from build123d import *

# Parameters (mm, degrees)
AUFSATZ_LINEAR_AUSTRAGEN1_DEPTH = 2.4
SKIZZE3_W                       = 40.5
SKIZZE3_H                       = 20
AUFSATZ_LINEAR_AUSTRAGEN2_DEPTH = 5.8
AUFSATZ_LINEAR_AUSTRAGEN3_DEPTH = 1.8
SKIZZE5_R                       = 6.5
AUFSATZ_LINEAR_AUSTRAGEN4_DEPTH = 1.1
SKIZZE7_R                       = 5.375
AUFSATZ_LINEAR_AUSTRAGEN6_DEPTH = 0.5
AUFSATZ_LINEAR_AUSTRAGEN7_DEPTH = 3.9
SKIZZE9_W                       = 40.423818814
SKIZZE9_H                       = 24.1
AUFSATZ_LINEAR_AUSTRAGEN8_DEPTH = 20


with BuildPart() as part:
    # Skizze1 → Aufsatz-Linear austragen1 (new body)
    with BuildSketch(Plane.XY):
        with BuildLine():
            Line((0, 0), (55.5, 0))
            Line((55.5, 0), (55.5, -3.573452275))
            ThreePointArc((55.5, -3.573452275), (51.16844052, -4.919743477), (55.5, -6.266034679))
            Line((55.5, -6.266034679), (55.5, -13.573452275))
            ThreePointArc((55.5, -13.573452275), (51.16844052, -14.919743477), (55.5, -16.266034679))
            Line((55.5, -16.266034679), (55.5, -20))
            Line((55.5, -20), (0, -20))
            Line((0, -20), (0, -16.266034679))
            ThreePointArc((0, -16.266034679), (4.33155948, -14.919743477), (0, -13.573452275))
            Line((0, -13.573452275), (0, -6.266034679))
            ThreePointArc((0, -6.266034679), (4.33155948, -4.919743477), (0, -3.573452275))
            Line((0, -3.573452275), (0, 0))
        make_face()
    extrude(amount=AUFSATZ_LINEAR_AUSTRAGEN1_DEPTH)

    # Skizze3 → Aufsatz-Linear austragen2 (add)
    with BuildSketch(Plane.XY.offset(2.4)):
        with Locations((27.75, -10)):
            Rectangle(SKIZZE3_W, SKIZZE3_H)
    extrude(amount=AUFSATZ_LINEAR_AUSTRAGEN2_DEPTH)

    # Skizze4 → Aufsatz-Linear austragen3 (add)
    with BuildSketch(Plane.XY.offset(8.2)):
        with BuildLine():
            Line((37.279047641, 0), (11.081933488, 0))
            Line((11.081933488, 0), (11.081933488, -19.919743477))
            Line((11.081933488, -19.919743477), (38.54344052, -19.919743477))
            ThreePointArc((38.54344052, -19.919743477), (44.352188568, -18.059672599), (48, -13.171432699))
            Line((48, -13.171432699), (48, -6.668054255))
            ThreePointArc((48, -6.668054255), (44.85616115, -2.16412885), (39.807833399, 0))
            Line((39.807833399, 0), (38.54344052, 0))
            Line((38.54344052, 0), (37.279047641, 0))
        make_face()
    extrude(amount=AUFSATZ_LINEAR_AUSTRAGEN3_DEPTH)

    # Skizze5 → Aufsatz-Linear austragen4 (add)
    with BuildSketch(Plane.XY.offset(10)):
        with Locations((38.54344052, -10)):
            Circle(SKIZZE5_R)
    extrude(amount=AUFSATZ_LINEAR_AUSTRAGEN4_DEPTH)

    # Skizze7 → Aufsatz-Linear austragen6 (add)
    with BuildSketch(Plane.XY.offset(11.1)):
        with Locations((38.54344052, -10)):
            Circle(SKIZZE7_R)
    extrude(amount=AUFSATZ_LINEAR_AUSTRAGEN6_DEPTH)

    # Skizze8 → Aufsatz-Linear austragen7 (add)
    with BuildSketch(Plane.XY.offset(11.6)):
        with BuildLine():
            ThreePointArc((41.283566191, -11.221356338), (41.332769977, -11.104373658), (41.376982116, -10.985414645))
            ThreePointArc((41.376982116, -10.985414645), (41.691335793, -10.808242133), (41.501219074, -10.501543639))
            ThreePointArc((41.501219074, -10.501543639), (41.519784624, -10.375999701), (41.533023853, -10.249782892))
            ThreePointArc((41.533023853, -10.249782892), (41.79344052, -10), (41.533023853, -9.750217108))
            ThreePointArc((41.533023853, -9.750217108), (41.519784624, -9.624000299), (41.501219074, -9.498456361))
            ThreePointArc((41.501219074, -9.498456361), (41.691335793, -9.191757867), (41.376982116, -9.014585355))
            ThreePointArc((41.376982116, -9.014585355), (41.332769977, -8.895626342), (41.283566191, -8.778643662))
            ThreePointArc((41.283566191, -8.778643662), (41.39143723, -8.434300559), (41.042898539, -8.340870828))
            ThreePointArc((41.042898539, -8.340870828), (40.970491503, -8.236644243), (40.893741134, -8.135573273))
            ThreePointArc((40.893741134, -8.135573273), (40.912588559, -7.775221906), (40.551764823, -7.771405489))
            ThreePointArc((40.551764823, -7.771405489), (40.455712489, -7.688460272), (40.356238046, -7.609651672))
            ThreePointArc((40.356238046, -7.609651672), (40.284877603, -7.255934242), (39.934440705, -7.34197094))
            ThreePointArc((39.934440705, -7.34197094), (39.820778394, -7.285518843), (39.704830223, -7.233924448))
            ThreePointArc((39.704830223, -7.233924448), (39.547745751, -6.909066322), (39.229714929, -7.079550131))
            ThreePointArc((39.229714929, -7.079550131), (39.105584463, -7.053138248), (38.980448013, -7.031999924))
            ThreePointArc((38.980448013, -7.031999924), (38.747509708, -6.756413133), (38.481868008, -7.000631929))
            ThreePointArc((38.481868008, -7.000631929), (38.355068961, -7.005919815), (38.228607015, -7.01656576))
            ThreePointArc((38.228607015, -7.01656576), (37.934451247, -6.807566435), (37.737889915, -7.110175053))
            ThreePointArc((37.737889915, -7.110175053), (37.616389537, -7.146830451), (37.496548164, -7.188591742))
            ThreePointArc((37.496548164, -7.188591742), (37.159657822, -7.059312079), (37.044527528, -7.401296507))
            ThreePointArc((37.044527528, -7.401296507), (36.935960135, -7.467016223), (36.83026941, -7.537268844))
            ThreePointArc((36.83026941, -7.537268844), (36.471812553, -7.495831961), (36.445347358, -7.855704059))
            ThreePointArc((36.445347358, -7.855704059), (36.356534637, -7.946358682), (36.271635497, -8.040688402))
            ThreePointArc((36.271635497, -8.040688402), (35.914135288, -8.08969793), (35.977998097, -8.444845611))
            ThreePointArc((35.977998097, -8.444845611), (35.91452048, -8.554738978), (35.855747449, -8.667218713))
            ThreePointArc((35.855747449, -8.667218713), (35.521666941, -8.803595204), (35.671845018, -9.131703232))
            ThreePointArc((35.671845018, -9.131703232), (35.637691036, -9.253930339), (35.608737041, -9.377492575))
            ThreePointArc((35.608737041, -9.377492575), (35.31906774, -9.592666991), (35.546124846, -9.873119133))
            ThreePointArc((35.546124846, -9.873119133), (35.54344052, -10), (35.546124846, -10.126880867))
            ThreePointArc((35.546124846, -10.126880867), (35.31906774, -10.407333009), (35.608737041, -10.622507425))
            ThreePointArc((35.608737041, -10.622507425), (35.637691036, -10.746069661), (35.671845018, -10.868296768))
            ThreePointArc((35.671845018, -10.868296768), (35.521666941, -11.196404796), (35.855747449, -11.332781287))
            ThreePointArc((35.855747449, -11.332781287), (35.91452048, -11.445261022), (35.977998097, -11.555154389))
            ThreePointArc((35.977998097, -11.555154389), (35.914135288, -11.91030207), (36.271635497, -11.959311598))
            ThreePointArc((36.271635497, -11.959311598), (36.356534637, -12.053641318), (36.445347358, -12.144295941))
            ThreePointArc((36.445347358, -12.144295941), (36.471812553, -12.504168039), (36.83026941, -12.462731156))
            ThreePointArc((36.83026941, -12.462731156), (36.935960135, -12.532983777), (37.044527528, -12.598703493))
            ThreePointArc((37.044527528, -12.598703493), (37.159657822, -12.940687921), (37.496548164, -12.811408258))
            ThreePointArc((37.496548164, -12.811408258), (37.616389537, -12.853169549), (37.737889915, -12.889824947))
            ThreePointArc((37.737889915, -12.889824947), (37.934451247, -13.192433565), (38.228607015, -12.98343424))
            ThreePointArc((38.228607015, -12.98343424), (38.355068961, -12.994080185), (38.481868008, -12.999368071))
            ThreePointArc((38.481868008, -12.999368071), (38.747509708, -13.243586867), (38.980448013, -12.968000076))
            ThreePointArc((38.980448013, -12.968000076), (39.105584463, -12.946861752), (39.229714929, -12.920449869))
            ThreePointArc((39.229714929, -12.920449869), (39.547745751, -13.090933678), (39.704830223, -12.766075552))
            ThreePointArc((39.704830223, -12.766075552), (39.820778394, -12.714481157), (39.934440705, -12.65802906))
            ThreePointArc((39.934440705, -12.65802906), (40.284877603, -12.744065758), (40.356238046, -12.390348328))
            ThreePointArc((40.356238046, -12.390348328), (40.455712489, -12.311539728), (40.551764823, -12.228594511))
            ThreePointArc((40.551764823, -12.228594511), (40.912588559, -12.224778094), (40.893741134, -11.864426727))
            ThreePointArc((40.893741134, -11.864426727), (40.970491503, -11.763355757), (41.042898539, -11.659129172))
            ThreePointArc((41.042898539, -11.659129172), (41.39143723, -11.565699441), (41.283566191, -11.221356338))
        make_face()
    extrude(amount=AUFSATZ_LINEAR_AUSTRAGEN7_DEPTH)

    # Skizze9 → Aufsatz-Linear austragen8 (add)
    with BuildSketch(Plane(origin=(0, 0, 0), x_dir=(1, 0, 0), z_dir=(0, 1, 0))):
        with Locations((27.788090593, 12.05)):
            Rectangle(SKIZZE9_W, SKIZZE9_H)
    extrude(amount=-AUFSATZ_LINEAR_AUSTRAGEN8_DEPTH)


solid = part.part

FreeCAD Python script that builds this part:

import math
import FreeCAD as App
import Part
import Sketcher
Q = App.Units.Quantity

doc = App.newDocument("Part")
body = doc.addObject("PartDesign::Body", "Body")

# Sketch on XY plane
sketch1 = body.newObject("Sketcher::SketchObject", "Sketch")
sketch1.AttachmentSupport = (doc.getObject("XY_Plane"), [""])
sketch1.MapMode = "FlatFace"
sketch1.addGeometry([
    Part.LineSegment(App.Vector(55.5, 0, 0), App.Vector(0, 0, 0)),  # 0
    Part.LineSegment(App.Vector(0, 0, 0), App.Vector(0, -3.6, 0)),  # 1
    Part.ArcOfCircle(Part.Circle(App.Vector(2, -4.9, 0), App.Vector(0, 0, 1), 2.4), math.radians(-145), math.radians(145)),  # 2
    Part.LineSegment(App.Vector(0, -6.3, 0), App.Vector(0, -13.6, 0)),  # 3
    Part.ArcOfCircle(Part.Circle(App.Vector(2, -14.9, 0), App.Vector(0, 0, 1), 2.4), math.radians(-145), math.radians(145)),  # 4
    Part.LineSegment(App.Vector(0, -16.3, 0), App.Vector(0, -20, 0)),  # 5
    Part.LineSegment(App.Vector(0, -20, 0), App.Vector(55.5, -20, 0)),  # 6
    Part.LineSegment(App.Vector(55.5, -20, 0), App.Vector(55.5, -16.3, 0)),  # 7
    Part.ArcOfCircle(Part.Circle(App.Vector(53.5, -14.9, 0), App.Vector(0, 0, 1), 2.4), math.radians(35), math.radians(325)),  # 8
    Part.LineSegment(App.Vector(55.5, -13.6, 0), App.Vector(55.5, -6.3, 0)),  # 9
    Part.ArcOfCircle(Part.Circle(App.Vector(53.5, -4.9, 0), App.Vector(0, 0, 1), 2.4), math.radians(35), math.radians(325)),  # 10
    Part.LineSegment(App.Vector(55.5, -3.6, 0), App.Vector(55.5, 0, 0)),  # 11
], False)
sketch1.addConstraint([
    Sketcher.Constraint("Coincident", 0, 2, 1, 1),
    Sketcher.Constraint("Coincident", 1, 2, 2, 2),
    Sketcher.Constraint("Coincident", 2, 1, 3, 1),
    Sketcher.Constraint("Coincident", 3, 2, 4, 2),
    Sketcher.Constraint("Coincident", 4, 1, 5, 1),
    Sketcher.Constraint("Coincident", 5, 2, 6, 1),
    Sketcher.Constraint("Coincident", 6, 2, 7, 1),
    Sketcher.Constraint("Coincident", 7, 2, 8, 2),
    Sketcher.Constraint("Coincident", 8, 1, 9, 1),
    Sketcher.Constraint("Coincident", 9, 2, 10, 2),
    Sketcher.Constraint("Coincident", 10, 1, 11, 1),
    Sketcher.Constraint("Coincident", 11, 2, 0, 1),
    Sketcher.Constraint("Horizontal", 0),
    Sketcher.Constraint("Vertical", 1),
    Sketcher.Constraint("Vertical", 3),
    Sketcher.Constraint("Vertical", 5),
    Sketcher.Constraint("Horizontal", 6),
    Sketcher.Constraint("Vertical", 7),
    Sketcher.Constraint("Vertical", 9),
    Sketcher.Constraint("Vertical", 11),
    Sketcher.Constraint("Coincident", 0, 2, -1, 1),
    Sketcher.Constraint("Equal", 2, 4),
    Sketcher.Constraint("Equal", 4, 8),
    Sketcher.Constraint("Equal", 8, 10),
    Sketcher.Constraint("PointOnObject", 2, 1, -2),
    Sketcher.Constraint("PointOnObject", 4, 1, -2),
    Sketcher.Constraint("Horizontal", 4, 3, 8, 3),
    Sketcher.Constraint("Horizontal", 2, 3, 10, 3),
    Sketcher.Constraint("Horizontal", 4, 1, 7, 2),
    Sketcher.Constraint("Horizontal", 3, 2, 8, 1),
    Sketcher.Constraint("Horizontal", 2, 1, 9, 2),
    Sketcher.Constraint("Horizontal", 1, 2, 10, 1),
    Sketcher.Constraint("Vertical", 2, 3, 4, 3),
    Sketcher.Constraint("DistanceX", 0, 2, 0, 1, Q("55.5 mm")),
    Sketcher.Constraint("DistanceY", 5, 2, -1, 1, Q("20 mm")),
    Sketcher.Constraint("Radius", 2, Q("2.375 mm")),
    Sketcher.Constraint("DistanceY", 4, 3, 2, 3, Q("10 mm")),
    Sketcher.Constraint("DistanceY", 1, 2, 1, 1, Q("3.573452 mm")),
    Sketcher.Constraint("DistanceY", 3, 2, 3, 1, Q("7.307418 mm")),
])
pad1 = body.newObject("PartDesign::Pad", "Pad")
pad1.Profile = sketch1
pad1.Length = 2.4

# Sketch on XY plane
sketch2 = body.newObject("Sketcher::SketchObject", "Sketch001")
sketch2.AttachmentSupport = (doc.getObject("XY_Plane"), [""])
sketch2.MapMode = "FlatFace"
sketch2.AttachmentOffset = App.Placement(App.Vector(0, 0, 2.4), App.Rotation())
sketch2.addGeometry([
    Part.LineSegment(App.Vector(8, 0, 0), App.Vector(8, -20, 0)),
    Part.LineSegment(App.Vector(8, -20, 0), App.Vector(48, -20, 0)),
    Part.LineSegment(App.Vector(48, -20, 0), App.Vector(48, 0, 0)),
    Part.LineSegment(App.Vector(48, 0, 0), App.Vector(8, 0, 0)),
], False)
sketch2.addConstraint([
    Sketcher.Constraint("Coincident", 0, 2, 1, 1),
    Sketcher.Constraint("Coincident", 1, 2, 2, 1),
    Sketcher.Constraint("Coincident", 2, 2, 3, 1),
    Sketcher.Constraint("Coincident", 3, 2, 0, 1),
    Sketcher.Constraint("Vertical", 0),
    Sketcher.Constraint("Horizontal", 1),
    Sketcher.Constraint("Vertical", 2),
    Sketcher.Constraint("Horizontal", 3),
    Sketcher.Constraint("PointOnObject", 2, 2, -1),
    Sketcher.Constraint("DistanceY", 0, 2, 0, 1, Q("20 mm")),
    Sketcher.Constraint("DistanceX", 1, 1, 1, 2, Q("40.5 mm")),
    Sketcher.Constraint("DistanceX", -1, 1, 1, 2, Q("48 mm")),
])
pad2 = body.newObject("PartDesign::Pad", "Pad001")
pad2.Profile = sketch2
pad2.Length = 5.8

# Sketch on XY plane
sketch3 = body.newObject("Sketcher::SketchObject", "Sketch002")
sketch3.AttachmentSupport = (doc.getObject("XY_Plane"), [""])
sketch3.MapMode = "FlatFace"
sketch3.AttachmentOffset = App.Placement(App.Vector(0, 0, 8.2), App.Rotation())
sketch3.addGeometry([
    Part.LineSegment(App.Vector(11, 0, 0), App.Vector(11, -20, 0)),  # 0
    Part.LineSegment(App.Vector(11, -20, 0), App.Vector(39, -20, 0)),  # 1
    Part.ArcOfCircle(Part.Circle(App.Vector(39, -10, 0), App.Vector(0, 0, 1), 10), math.radians(-90), math.radians(-19)),  # 2
    Part.LineSegment(App.Vector(48, -13, 0), App.Vector(48, -7, 0)),  # 3
    Part.ArcOfCircle(Part.Circle(App.Vector(39, -10, 0), App.Vector(0, 0, 1), 10), math.radians(19), math.radians(83)),  # 4
    Part.LineSegment(App.Vector(40, 0, 0), App.Vector(11, 0, 0)),  # 5
], False)
sketch3.addConstraint([
    Sketcher.Constraint("Coincident", 0, 2, 1, 1),
    Sketcher.Constraint("Tangent", 1, 2, 2, 1),
    Sketcher.Constraint("Coincident", 2, 2, 3, 1),
    Sketcher.Constraint("Coincident", 3, 2, 4, 1),
    Sketcher.Constraint("Coincident", 4, 2, 5, 1),
    Sketcher.Constraint("Coincident", 5, 2, 0, 1),
    Sketcher.Constraint("Vertical", 0),
    Sketcher.Constraint("Horizontal", 1),
    Sketcher.Constraint("Vertical", 3),
    Sketcher.Constraint("Horizontal", 5),
    Sketcher.Constraint("Coincident", 4, 3, 2, 3),
    Sketcher.Constraint("Equal", 2, 4),
    Sketcher.Constraint("PointOnObject", 4, 2, -1),
    Sketcher.Constraint("Radius", 2, Q("10 mm")),
    Sketcher.Constraint("DistanceX", -1, 1, 2, 2, Q("48 mm")),
    Sketcher.Constraint("DistanceX", 5, 2, 5, 1, Q("28.7259 mm")),
    Sketcher.Constraint("DistanceY", 3, 1, 3, 2, Q("6.503378 mm")),
    Sketcher.Constraint("DistanceX", 1, 1, 1, 2, Q("27.461507 mm")),
])
pad3 = body.newObject("PartDesign::Pad", "Pad002")
pad3.Profile = sketch3
pad3.Length = 1.8

# Sketch on XY plane
sketch4 = body.newObject("Sketcher::SketchObject", "Sketch003")
sketch4.AttachmentSupport = (doc.getObject("XY_Plane"), [""])
sketch4.MapMode = "FlatFace"
sketch4.AttachmentOffset = App.Placement(App.Vector(0, 0, 10), App.Rotation())
sketch4.addGeometry(Part.Circle(App.Vector(39, -10, 0), App.Vector(0, 0, 1), 6), False)
sketch4.addConstraint([
    Sketcher.Constraint("Diameter", 0, Q("13 mm")),
    Sketcher.Constraint("DistanceY", 0, 3, -1, 1, Q("10 mm")),
    Sketcher.Constraint("DistanceX", -1, 1, 0, 3, Q("38.543441 mm")),
])
pad4 = body.newObject("PartDesign::Pad", "Pad003")
pad4.Profile = sketch4
pad4.Length = 1.1

# Sketch on XY plane
sketch5 = body.newObject("Sketcher::SketchObject", "Sketch004")
sketch5.AttachmentSupport = (doc.getObject("XY_Plane"), [""])
sketch5.MapMode = "FlatFace"
sketch5.AttachmentOffset = App.Placement(App.Vector(0, 0, 11.1), App.Rotation())
sketch5.addGeometry(Part.Circle(App.Vector(39, -10, 0), App.Vector(0, 0, 1), 5), False)
sketch5.addConstraint([
    Sketcher.Constraint("Diameter", 0, Q("10.75 mm")),
    Sketcher.Constraint("DistanceY", 0, 3, -1, 1, Q("10 mm")),
    Sketcher.Constraint("DistanceX", -1, 1, 0, 3, Q("38.543441 mm")),
])
pad5 = body.newObject("PartDesign::Pad", "Pad004")
pad5.Profile = sketch5
pad5.Length = 0.5

# Sketch on XY plane
sketch6 = body.newObject("Sketcher::SketchObject", "Sketch005")
sketch6.AttachmentSupport = (doc.getObject("XY_Plane"), [""])
sketch6.MapMode = "FlatFace"
sketch6.AttachmentOffset = App.Placement(App.Vector(0, 0, 11.6), App.Rotation())
sketch6.addGeometry([
    Part.ArcOfCircle(Part.Circle(App.Vector(38.54, -10, 0), App.Vector(0, 0, 1), 3), math.radians(-24.02), math.radians(-19.18)),  # 0
    Part.ArcOfCircle(Part.Circle(App.Vector(41.45, -10.75, 0), App.Vector(0, 0, 1), 0.25), math.radians(-107), math.radians(78)),  # 1
    Part.ArcOfCircle(Part.Circle(App.Vector(38.54, -10, 0), App.Vector(0, 0, 1), 3), math.radians(-9.62), math.radians(-4.78)),  # 2
    Part.ArcOfCircle(Part.Circle(App.Vector(41.54, -10, 0), App.Vector(0, 0, 1), 0.25), math.radians(-92), math.radians(92)),  # 3
    Part.ArcOfCircle(Part.Circle(App.Vector(38.54, -10, 0), App.Vector(0, 0, 1), 3), math.radians(4.78), math.radians(9.62)),  # 4
    Part.ArcOfCircle(Part.Circle(App.Vector(41.45, -9.25, 0), App.Vector(0, 0, 1), 0.25), math.radians(-78), math.radians(107)),  # 5
    Part.ArcOfCircle(Part.Circle(App.Vector(38.54, -10, 0), App.Vector(0, 0, 1), 3), math.radians(19.18), math.radians(24.02)),  # 6
    Part.ArcOfCircle(Part.Circle(App.Vector(41.17, -8.55, 0), App.Vector(0, 0, 1), 0.25), math.radians(-64), math.radians(121)),  # 7
    Part.ArcOfCircle(Part.Circle(App.Vector(38.54, -10, 0), App.Vector(0, 0, 1), 3), math.radians(33.58), math.radians(38.42)),  # 8
    Part.ArcOfCircle(Part.Circle(App.Vector(40.73, -7.95, 0), App.Vector(0, 0, 1), 0.25), math.radians(-49), math.radians(136)),  # 9
    Part.ArcOfCircle(Part.Circle(App.Vector(38.54, -10, 0), App.Vector(0, 0, 1), 3), math.radians(47.98), math.radians(52.82)),  # 10
    Part.ArcOfCircle(Part.Circle(App.Vector(40.15, -7.47, 0), App.Vector(0, 0, 1), 0.25), math.radians(-35), math.radians(150)),  # 11
    Part.ArcOfCircle(Part.Circle(App.Vector(38.54, -10, 0), App.Vector(0, 0, 1), 3), math.radians(62.38), math.radians(67.22)),  # 12
    Part.ArcOfCircle(Part.Circle(App.Vector(39.47, -7.15, 0), App.Vector(0, 0, 1), 0.25), math.radians(-20), math.radians(164)),  # 13
    Part.ArcOfCircle(Part.Circle(App.Vector(38.54, -10, 0), App.Vector(0, 0, 1), 3), math.radians(76.78), math.radians(81.62)),  # 14
    Part.ArcOfCircle(Part.Circle(App.Vector(38.73, -7.01, 0), App.Vector(0, 0, 1), 0.25), math.radians(-6), math.radians(179)),  # 15
    Part.ArcOfCircle(Part.Circle(App.Vector(38.54, -10, 0), App.Vector(0, 0, 1), 3), math.radians(91.18), math.radians(96.02)),  # 16
    Part.ArcOfCircle(Part.Circle(App.Vector(37.98, -7.05, 0), App.Vector(0, 0, 1), 0.25), math.radians(8), math.radians(193)),  # 17
    Part.ArcOfCircle(Part.Circle(App.Vector(38.54, -10, 0), App.Vector(0, 0, 1), 3), math.radians(105.58), math.radians(110.42)),  # 18
    Part.ArcOfCircle(Part.Circle(App.Vector(37.27, -7.29, 0), App.Vector(0, 0, 1), 0.25), math.radians(23), math.radians(208)),  # 19
    Part.ArcOfCircle(Part.Circle(App.Vector(38.54, -10, 0), App.Vector(0, 0, 1), 3), math.radians(119.98), math.radians(124.82)),  # 20
    Part.ArcOfCircle(Part.Circle(App.Vector(36.63, -7.69, 0), App.Vector(0, 0, 1), 0.25), math.radians(37), math.radians(222)),  # 21
    Part.ArcOfCircle(Part.Circle(App.Vector(38.54, -10, 0), App.Vector(0, 0, 1), 3), math.radians(134.38), math.radians(139.22)),  # 22
    Part.ArcOfCircle(Part.Circle(App.Vector(36.12, -8.24, 0), App.Vector(0, 0, 1), 0.25), math.radians(52), math.radians(236)),  # 23
    Part.ArcOfCircle(Part.Circle(App.Vector(38.54, -10, 0), App.Vector(0, 0, 1), 3), math.radians(148.78), math.radians(153.62)),  # 24
    Part.ArcOfCircle(Part.Circle(App.Vector(35.75, -8.9, 0), App.Vector(0, 0, 1), 0.25), math.radians(66), math.radians(251)),  # 25
    Part.ArcOfCircle(Part.Circle(App.Vector(38.54, -10, 0), App.Vector(0, 0, 1), 3), math.radians(163.18), math.radians(168.02)),  # 26
    Part.ArcOfCircle(Part.Circle(App.Vector(35.57, -9.62, 0), App.Vector(0, 0, 1), 0.25), math.radians(80), math.radians(265)),  # 27
    Part.ArcOfCircle(Part.Circle(App.Vector(38.54, -10, 0), App.Vector(0, 0, 1), 3), math.radians(177.58), math.radians(182.42)),  # 28
    Part.ArcOfCircle(Part.Circle(App.Vector(35.57, -10.38, 0), App.Vector(0, 0, 1), 0.25), math.radians(95), math.radians(280)),  # 29
    Part.ArcOfCircle(Part.Circle(App.Vector(38.54, -10, 0), App.Vector(0, 0, 1), 3), math.radians(-168.02), math.radians(-163.18)),  # 30
    Part.ArcOfCircle(Part.Circle(App.Vector(35.75, -11.1, 0), App.Vector(0, 0, 1), 0.25), math.radians(109), math.radians(294)),  # 31
    Part.ArcOfCircle(Part.Circle(App.Vector(38.54, -10, 0), App.Vector(0, 0, 1), 3), math.radians(-153.62), math.radians(-148.78)),  # 32
    Part.ArcOfCircle(Part.Circle(App.Vector(36.12, -11.76, 0), App.Vector(0, 0, 1), 0.25), math.radians(124), math.radians(308)),  # 33
    Part.ArcOfCircle(Part.Circle(App.Vector(38.54, -10, 0), App.Vector(0, 0, 1), 3), math.radians(-139.22), math.radians(-134.38)),  # 34
    Part.ArcOfCircle(Part.Circle(App.Vector(36.63, -12.31, 0), App.Vector(0, 0, 1), 0.25), math.radians(138), math.radians(323)),  # 35
    Part.ArcOfCircle(Part.Circle(App.Vector(38.54, -10, 0), App.Vector(0, 0, 1), 3), math.radians(-124.82), math.radians(-119.98)),  # 36
    Part.ArcOfCircle(Part.Circle(App.Vector(37.27, -12.71, 0), App.Vector(0, 0, 1), 0.25), math.radians(152), math.radians(337)),  # 37
    Part.ArcOfCircle(Part.Circle(App.Vector(38.54, -10, 0), App.Vector(0, 0, 1), 3), math.radians(-110.42), math.radians(-105.58)),  # 38
    Part.ArcOfCircle(Part.Circle(App.Vector(37.98, -12.95, 0), App.Vector(0, 0, 1), 0.25), math.radians(167), math.radians(352)),  # 39
    Part.ArcOfCircle(Part.Circle(App.Vector(38.54, -10, 0), App.Vector(0, 0, 1), 3), math.radians(-96.02), math.radians(-91.18)),  # 40
    Part.ArcOfCircle(Part.Circle(App.Vector(38.73, -12.99, 0), App.Vector(0, 0, 1), 0.25), math.radians(-179), math.radians(6)),  # 41
    Part.ArcOfCircle(Part.Circle(App.Vector(38.54, -10, 0), App.Vector(0, 0, 1), 3), math.radians(-81.62), math.radians(-76.78)),  # 42
    Part.ArcOfCircle(Part.Circle(App.Vector(39.47, -12.85, 0), App.Vector(0, 0, 1), 0.25), math.radians(-164), math.radians(20)),  # 43
    Part.ArcOfCircle(Part.Circle(App.Vector(38.54, -10, 0), App.Vector(0, 0, 1), 3), math.radians(-67.22), math.radians(-62.38)),  # 44
    Part.ArcOfCircle(Part.Circle(App.Vector(40.15, -12.53, 0), App.Vector(0, 0, 1), 0.25), math.radians(-150), math.radians(35)),  # 45
    Part.ArcOfCircle(Part.Circle(App.Vector(38.54, -10, 0), App.Vector(0, 0, 1), 3), math.radians(-52.82), math.radians(-47.98)),  # 46
    Part.ArcOfCircle(Part.Circle(App.Vector(40.73, -12.05, 0), App.Vector(0, 0, 1), 0.25), math.radians(-136), math.radians(49)),  # 47
    Part.ArcOfCircle(Part.Circle(App.Vector(38.54, -10, 0), App.Vector(0, 0, 1), 3), math.radians(-38.42), math.radians(-33.58)),  # 48
    Part.ArcOfCircle(Part.Circle(App.Vector(41.17, -11.45, 0), App.Vector(0, 0, 1), 0.25), math.radians(-121), math.radians(64)),  # 49
], False)
sketch6.addConstraint([
    Sketcher.Constraint("Coincident", 0, 2, 1, 1),
    Sketcher.Constraint("Coincident", 1, 2, 2, 1),
    Sketcher.Constraint("Coincident", 2, 2, 3, 1),
    Sketcher.Constraint("Coincident", 3, 2, 4, 1),
    Sketcher.Constraint("Coincident", 4, 2, 5, 1),
    Sketcher.Constraint("Coincident", 5, 2, 6, 1),
    Sketcher.Constraint("Coincident", 6, 2, 7, 1),
    Sketcher.Constraint("Coincident", 7, 2, 8, 1),
    Sketcher.Constraint("Coincident", 8, 2, 9, 1),
    Sketcher.Constraint("Coincident", 9, 2, 10, 1),
    Sketcher.Constraint("Coincident", 10, 2, 11, 1),
    Sketcher.Constraint("Coincident", 11, 2, 12, 1),
    Sketcher.Constraint("Coincident", 12, 2, 13, 1),
    Sketcher.Constraint("Coincident", 13, 2, 14, 1),
    Sketcher.Constraint("Coincident", 14, 2, 15, 1),
    Sketcher.Constraint("Coincident", 15, 2, 16, 1),
    Sketcher.Constraint("Coincident", 16, 2, 17, 1),
    Sketcher.Constraint("Coincident", 17, 2, 18, 1),
    Sketcher.Constraint("Coincident", 18, 2, 19, 1),
    Sketcher.Constraint("Coincident", 19, 2, 20, 1),
    Sketcher.Constraint("Coincident", 20, 2, 21, 1),
    Sketcher.Constraint("Coincident", 21, 2, 22, 1),
    Sketcher.Constraint("Coincident", 22, 2, 23, 1),
    Sketcher.Constraint("Coincident", 23, 2, 24, 1),
    Sketcher.Constraint("Coincident", 24, 2, 25, 1),
    Sketcher.Constraint("Coincident", 25, 2, 26, 1),
    Sketcher.Constraint("Coincident", 26, 2, 27, 1),
    Sketcher.Constraint("Coincident", 27, 2, 28, 1),
    Sketcher.Constraint("Coincident", 28, 2, 29, 1),
    Sketcher.Constraint("Coincident", 29, 2, 30, 1),
    Sketcher.Constraint("Coincident", 30, 2, 31, 1),
    Sketcher.Constraint("Coincident", 31, 2, 32, 1),
    Sketcher.Constraint("Coincident", 32, 2, 33, 1),
    Sketcher.Constraint("Coincident", 33, 2, 34, 1),
    Sketcher.Constraint("Coincident", 34, 2, 35, 1),
    Sketcher.Constraint("Coincident", 35, 2, 36, 1),
    Sketcher.Constraint("Coincident", 36, 2, 37, 1),
    Sketcher.Constraint("Coincident", 37, 2, 38, 1),
    Sketcher.Constraint("Coincident", 38, 2, 39, 1),
    Sketcher.Constraint("Coincident", 39, 2, 40, 1),
    Sketcher.Constraint("Coincident", 40, 2, 41, 1),
    Sketcher.Constraint("Coincident", 41, 2, 42, 1),
    Sketcher.Constraint("Coincident", 42, 2, 43, 1),
    Sketcher.Constraint("Coincident", 43, 2, 44, 1),
    Sketcher.Constraint("Coincident", 44, 2, 45, 1),
    Sketcher.Constraint("Coincident", 45, 2, 46, 1),
    Sketcher.Constraint("Coincident", 46, 2, 47, 1),
    Sketcher.Constraint("Coincident", 47, 2, 48, 1),
    Sketcher.Constraint("Coincident", 48, 2, 49, 1),
    Sketcher.Constraint("Coincident", 49, 2, 0, 1),
    Sketcher.Constraint("Coincident", 2, 3, 0, 3),
    Sketcher.Constraint("Coincident", 4, 3, 0, 3),
    Sketcher.Constraint("Coincident", 6, 3, 0, 3),
    Sketcher.Constraint("Coincident", 8, 3, 0, 3),
    Sketcher.Constraint("Coincident", 10, 3, 0, 3),
    Sketcher.Constraint("Coincident", 12, 3, 0, 3),
    Sketcher.Constraint("Coincident", 14, 3, 0, 3),
    Sketcher.Constraint("Coincident", 16, 3, 0, 3),
    Sketcher.Constraint("Coincident", 18, 3, 0, 3),
    Sketcher.Constraint("Coincident", 20, 3, 0, 3),
    Sketcher.Constraint("Coincident", 22, 3, 0, 3),
    Sketcher.Constraint("Coincident", 24, 3, 0, 3),
    Sketcher.Constraint("Coincident", 26, 3, 0, 3),
    Sketcher.Constraint("Coincident", 28, 3, 0, 3),
    Sketcher.Constraint("Coincident", 30, 3, 0, 3),
    Sketcher.Constraint("Coincident", 32, 3, 0, 3),
    Sketcher.Constraint("Coincident", 34, 3, 0, 3),
    Sketcher.Constraint("Coincident", 36, 3, 0, 3),
    Sketcher.Constraint("Coincident", 38, 3, 0, 3),
    Sketcher.Constraint("Coincident", 40, 3, 0, 3),
    Sketcher.Constraint("Coincident", 42, 3, 0, 3),
    Sketcher.Constraint("Coincident", 44, 3, 0, 3),
    Sketcher.Constraint("Coincident", 46, 3, 0, 3),
    Sketcher.Constraint("Coincident", 48, 3, 0, 3),
    Sketcher.Constraint("Equal", 0, 2),
    Sketcher.Constraint("Equal", 1, 3),
    Sketcher.Constraint("Equal", 2, 4),
    Sketcher.Constraint("Equal", 3, 5),
    Sketcher.Constraint("Equal", 4, 6),
    Sketcher.Constraint("Equal", 5, 7),
    Sketcher.Constraint("Equal", 6, 8),
    Sketcher.Constraint("Equal", 7, 9),
    Sketcher.Constraint("Equal", 8, 10),
    Sketcher.Constraint("Equal", 9, 11),
    Sketcher.Constraint("Equal", 10, 12),
    Sketcher.Constraint("Equal", 11, 13),
    Sketcher.Constraint("Equal", 12, 14),
    Sketcher.Constraint("Equal", 13, 15),
    Sketcher.Constraint("Equal", 14, 16),
    Sketcher.Constraint("Equal", 15, 17),
    Sketcher.Constraint("Equal", 16, 18),
    Sketcher.Constraint("Equal", 17, 19),
    Sketcher.Constraint("Equal", 18, 20),
    Sketcher.Constraint("Equal", 19, 21),
    Sketcher.Constraint("Equal", 20, 22),
    Sketcher.Constraint("Equal", 21, 23),
    Sketcher.Constraint("Equal", 22, 24),
    Sketcher.Constraint("Equal", 23, 25),
    Sketcher.Constraint("Equal", 24, 26),
    Sketcher.Constraint("Equal", 25, 27),
    Sketcher.Constraint("Equal", 26, 28),
    Sketcher.Constraint("Equal", 27, 29),
    Sketcher.Constraint("Equal", 28, 30),
    Sketcher.Constraint("Equal", 29, 31),
    Sketcher.Constraint("Equal", 30, 32),
    Sketcher.Constraint("Equal", 31, 33),
    Sketcher.Constraint("Equal", 32, 34),
    Sketcher.Constraint("Equal", 33, 35),
    Sketcher.Constraint("Equal", 34, 36),
    Sketcher.Constraint("Equal", 35, 37),
    Sketcher.Constraint("Equal", 36, 38),
    Sketcher.Constraint("Equal", 37, 39),
    Sketcher.Constraint("Equal", 38, 40),
    Sketcher.Constraint("Equal", 39, 41),
    Sketcher.Constraint("Equal", 40, 42),
    Sketcher.Constraint("Equal", 41, 43),
    Sketcher.Constraint("Equal", 42, 44),
    Sketcher.Constraint("Equal", 43, 45),
    Sketcher.Constraint("Equal", 44, 46),
    Sketcher.Constraint("Equal", 45, 47),
    Sketcher.Constraint("Equal", 46, 48),
    Sketcher.Constraint("Equal", 47, 49),
    Sketcher.Constraint("Horizontal", 2, 3, 3, 3),
    Sketcher.Constraint("Vertical", 1, 3, 5, 3),
    Sketcher.Constraint("Vertical", 27, 3, 29, 3),
    Sketcher.Constraint("Vertical", 25, 3, 31, 3),
    Sketcher.Constraint("Vertical", 23, 3, 33, 3),
    Sketcher.Constraint("Vertical", 21, 3, 35, 3),
    Sketcher.Constraint("Vertical", 19, 3, 37, 3),
    Sketcher.Constraint("Vertical", 17, 3, 39, 3),
    Sketcher.Constraint("Vertical", 15, 3, 41, 3),
    Sketcher.Constraint("Vertical", 13, 3, 43, 3),
    Sketcher.Constraint("Vertical", 11, 3, 45, 3),
    Sketcher.Constraint("Vertical", 9, 3, 47, 3),
    Sketcher.Constraint("Vertical", 7, 3, 49, 3),
    Sketcher.Constraint("Vertical", 1, 2, 4, 2),
    Sketcher.Constraint("Vertical", 27, 2, 28, 2),
    Sketcher.Constraint("Vertical", 25, 2, 30, 2),
    Sketcher.Constraint("Vertical", 23, 2, 32, 2),
    Sketcher.Constraint("Vertical", 21, 2, 34, 2),
    Sketcher.Constraint("Vertical", 19, 2, 36, 2),
    Sketcher.Constraint("Vertical", 17, 2, 38, 2),
    Sketcher.Constraint("Vertical", 14, 2, 41, 2),
    Sketcher.Constraint("Vertical", 13, 2, 42, 2),
    Sketcher.Constraint("Vertical", 11, 2, 44, 2),
    Sketcher.Constraint("Vertical", 9, 2, 46, 2),
    Sketcher.Constraint("Vertical", 7, 2, 48, 2),
    Sketcher.Constraint("Radius", 0, Q("3 mm")),
    Sketcher.Constraint("Radius", 1, Q("0.25 mm")),
    Sketcher.Constraint("DistanceY", 0, 3, -1, 1, Q("10 mm")),
    Sketcher.Constraint("DistanceY", 27, 3, -1, 1, Q("9.624 mm")),
    Sketcher.Constraint("DistanceY", 14, 2, -1, 1, Q("7.032 mm")),
    Sketcher.Constraint("DistanceX", -1, 1, 23, 2, Q("35.977998 mm")),
    Sketcher.Constraint("DistanceX", -1, 1, 7, 2, Q("41.042899 mm")),
    Sketcher.Constraint("DistanceX", -1, 1, 0, 3, Q("38.54344 mm")),
    Sketcher.Constraint("DistanceX", -1, 1, 1, 3, Q("41.44919 mm")),
    Sketcher.Constraint("DistanceY", 1, 3, -1, 1, Q("10.74607 mm")),
    Sketcher.Constraint("DistanceX", -1, 1, 3, 3, Q("41.543441 mm")),
    Sketcher.Constraint("DistanceX", -1, 1, 7, 3, Q("41.172361 mm")),
    Sketcher.Constraint("DistanceY", 9, 3, -1, 1, Q("7.946359 mm")),
    Sketcher.Constraint("DistanceX", -1, 1, 11, 3, Q("40.150921 mm")),
    Sketcher.Constraint("DistanceX", -1, 1, 13, 3, Q("39.470492 mm")),
    Sketcher.Constraint("DistanceY", 13, 3, -1, 1, Q("7.14683 mm")),
    Sketcher.Constraint("DistanceY", 15, 3, -1, 1, Q("7.00592 mm")),
    Sketcher.Constraint("DistanceY", 17, 3, -1, 1, Q("7.053138 mm")),
    Sketcher.Constraint("DistanceY", 19, 3, -1, 1, Q("7.285519 mm")),
    Sketcher.Constraint("DistanceX", -1, 1, 21, 3, Q("36.631169 mm")),
    Sketcher.Constraint("DistanceY", 21, 3, -1, 1, Q("7.68846 mm")),
    Sketcher.Constraint("DistanceX", -1, 1, 23, 3, Q("36.11639 mm")),
    Sketcher.Constraint("DistanceX", -1, 1, 25, 3, Q("35.754111 mm")),
    Sketcher.Constraint("DistanceX", -1, 1, 8, 2, Q("40.893741 mm")),
    Sketcher.Constraint("DistanceX", -1, 1, 10, 2, Q("40.356238 mm")),
    Sketcher.Constraint("DistanceX", -1, 1, 17, 2, Q("37.73789 mm")),
    Sketcher.Constraint("DistanceX", -1, 1, 18, 2, Q("37.496548 mm")),
    Sketcher.Constraint("DistanceY", 24, 2, -1, 1, Q("8.667219 mm")),
    Sketcher.Constraint("DistanceY", 27, 2, -1, 1, Q("9.873119 mm")),
])
pad6 = body.newObject("PartDesign::Pad", "Pad005")
pad6.Profile = sketch6
pad6.Length = 3.9

# Sketch on XZ plane
sketch7 = body.newObject("Sketcher::SketchObject", "Sketch006")
sketch7.AttachmentSupport = (doc.getObject("XZ_Plane"), [""])
sketch7.MapMode = "FlatFace"
sketch7.addGeometry([
    Part.LineSegment(App.Vector(8, -24, 0), App.Vector(8, 0, 0)),
    Part.LineSegment(App.Vector(8, 0, 0), App.Vector(48, 0, 0)),
    Part.LineSegment(App.Vector(48, 0, 0), App.Vector(48, -24, 0)),
    Part.LineSegment(App.Vector(48, -24, 0), App.Vector(8, -24, 0)),
], False)
sketch7.addConstraint([
    Sketcher.Constraint("Coincident", 0, 2, 1, 1),
    Sketcher.Constraint("Coincident", 1, 2, 2, 1),
    Sketcher.Constraint("Coincident", 2, 2, 3, 1),
    Sketcher.Constraint("Coincident", 3, 2, 0, 1),
    Sketcher.Constraint("Vertical", 0),
    Sketcher.Constraint("Horizontal", 1),
    Sketcher.Constraint("Vertical", 2),
    Sketcher.Constraint("Horizontal", 3),
    Sketcher.Constraint("PointOnObject", 0, 2, -1),
    Sketcher.Constraint("DistanceY", 0, 1, 0, 2, Q("24.1 mm")),
    Sketcher.Constraint("DistanceX", -1, 1, 1, 2, Q("48 mm")),
    Sketcher.Constraint("DistanceX", 1, 1, 1, 2, Q("40.423819 mm")),
])
pad7 = body.newObject("PartDesign::Pad", "Pad006")
pad7.Profile = sketch7
pad7.Length = 20

doc.recompute()
